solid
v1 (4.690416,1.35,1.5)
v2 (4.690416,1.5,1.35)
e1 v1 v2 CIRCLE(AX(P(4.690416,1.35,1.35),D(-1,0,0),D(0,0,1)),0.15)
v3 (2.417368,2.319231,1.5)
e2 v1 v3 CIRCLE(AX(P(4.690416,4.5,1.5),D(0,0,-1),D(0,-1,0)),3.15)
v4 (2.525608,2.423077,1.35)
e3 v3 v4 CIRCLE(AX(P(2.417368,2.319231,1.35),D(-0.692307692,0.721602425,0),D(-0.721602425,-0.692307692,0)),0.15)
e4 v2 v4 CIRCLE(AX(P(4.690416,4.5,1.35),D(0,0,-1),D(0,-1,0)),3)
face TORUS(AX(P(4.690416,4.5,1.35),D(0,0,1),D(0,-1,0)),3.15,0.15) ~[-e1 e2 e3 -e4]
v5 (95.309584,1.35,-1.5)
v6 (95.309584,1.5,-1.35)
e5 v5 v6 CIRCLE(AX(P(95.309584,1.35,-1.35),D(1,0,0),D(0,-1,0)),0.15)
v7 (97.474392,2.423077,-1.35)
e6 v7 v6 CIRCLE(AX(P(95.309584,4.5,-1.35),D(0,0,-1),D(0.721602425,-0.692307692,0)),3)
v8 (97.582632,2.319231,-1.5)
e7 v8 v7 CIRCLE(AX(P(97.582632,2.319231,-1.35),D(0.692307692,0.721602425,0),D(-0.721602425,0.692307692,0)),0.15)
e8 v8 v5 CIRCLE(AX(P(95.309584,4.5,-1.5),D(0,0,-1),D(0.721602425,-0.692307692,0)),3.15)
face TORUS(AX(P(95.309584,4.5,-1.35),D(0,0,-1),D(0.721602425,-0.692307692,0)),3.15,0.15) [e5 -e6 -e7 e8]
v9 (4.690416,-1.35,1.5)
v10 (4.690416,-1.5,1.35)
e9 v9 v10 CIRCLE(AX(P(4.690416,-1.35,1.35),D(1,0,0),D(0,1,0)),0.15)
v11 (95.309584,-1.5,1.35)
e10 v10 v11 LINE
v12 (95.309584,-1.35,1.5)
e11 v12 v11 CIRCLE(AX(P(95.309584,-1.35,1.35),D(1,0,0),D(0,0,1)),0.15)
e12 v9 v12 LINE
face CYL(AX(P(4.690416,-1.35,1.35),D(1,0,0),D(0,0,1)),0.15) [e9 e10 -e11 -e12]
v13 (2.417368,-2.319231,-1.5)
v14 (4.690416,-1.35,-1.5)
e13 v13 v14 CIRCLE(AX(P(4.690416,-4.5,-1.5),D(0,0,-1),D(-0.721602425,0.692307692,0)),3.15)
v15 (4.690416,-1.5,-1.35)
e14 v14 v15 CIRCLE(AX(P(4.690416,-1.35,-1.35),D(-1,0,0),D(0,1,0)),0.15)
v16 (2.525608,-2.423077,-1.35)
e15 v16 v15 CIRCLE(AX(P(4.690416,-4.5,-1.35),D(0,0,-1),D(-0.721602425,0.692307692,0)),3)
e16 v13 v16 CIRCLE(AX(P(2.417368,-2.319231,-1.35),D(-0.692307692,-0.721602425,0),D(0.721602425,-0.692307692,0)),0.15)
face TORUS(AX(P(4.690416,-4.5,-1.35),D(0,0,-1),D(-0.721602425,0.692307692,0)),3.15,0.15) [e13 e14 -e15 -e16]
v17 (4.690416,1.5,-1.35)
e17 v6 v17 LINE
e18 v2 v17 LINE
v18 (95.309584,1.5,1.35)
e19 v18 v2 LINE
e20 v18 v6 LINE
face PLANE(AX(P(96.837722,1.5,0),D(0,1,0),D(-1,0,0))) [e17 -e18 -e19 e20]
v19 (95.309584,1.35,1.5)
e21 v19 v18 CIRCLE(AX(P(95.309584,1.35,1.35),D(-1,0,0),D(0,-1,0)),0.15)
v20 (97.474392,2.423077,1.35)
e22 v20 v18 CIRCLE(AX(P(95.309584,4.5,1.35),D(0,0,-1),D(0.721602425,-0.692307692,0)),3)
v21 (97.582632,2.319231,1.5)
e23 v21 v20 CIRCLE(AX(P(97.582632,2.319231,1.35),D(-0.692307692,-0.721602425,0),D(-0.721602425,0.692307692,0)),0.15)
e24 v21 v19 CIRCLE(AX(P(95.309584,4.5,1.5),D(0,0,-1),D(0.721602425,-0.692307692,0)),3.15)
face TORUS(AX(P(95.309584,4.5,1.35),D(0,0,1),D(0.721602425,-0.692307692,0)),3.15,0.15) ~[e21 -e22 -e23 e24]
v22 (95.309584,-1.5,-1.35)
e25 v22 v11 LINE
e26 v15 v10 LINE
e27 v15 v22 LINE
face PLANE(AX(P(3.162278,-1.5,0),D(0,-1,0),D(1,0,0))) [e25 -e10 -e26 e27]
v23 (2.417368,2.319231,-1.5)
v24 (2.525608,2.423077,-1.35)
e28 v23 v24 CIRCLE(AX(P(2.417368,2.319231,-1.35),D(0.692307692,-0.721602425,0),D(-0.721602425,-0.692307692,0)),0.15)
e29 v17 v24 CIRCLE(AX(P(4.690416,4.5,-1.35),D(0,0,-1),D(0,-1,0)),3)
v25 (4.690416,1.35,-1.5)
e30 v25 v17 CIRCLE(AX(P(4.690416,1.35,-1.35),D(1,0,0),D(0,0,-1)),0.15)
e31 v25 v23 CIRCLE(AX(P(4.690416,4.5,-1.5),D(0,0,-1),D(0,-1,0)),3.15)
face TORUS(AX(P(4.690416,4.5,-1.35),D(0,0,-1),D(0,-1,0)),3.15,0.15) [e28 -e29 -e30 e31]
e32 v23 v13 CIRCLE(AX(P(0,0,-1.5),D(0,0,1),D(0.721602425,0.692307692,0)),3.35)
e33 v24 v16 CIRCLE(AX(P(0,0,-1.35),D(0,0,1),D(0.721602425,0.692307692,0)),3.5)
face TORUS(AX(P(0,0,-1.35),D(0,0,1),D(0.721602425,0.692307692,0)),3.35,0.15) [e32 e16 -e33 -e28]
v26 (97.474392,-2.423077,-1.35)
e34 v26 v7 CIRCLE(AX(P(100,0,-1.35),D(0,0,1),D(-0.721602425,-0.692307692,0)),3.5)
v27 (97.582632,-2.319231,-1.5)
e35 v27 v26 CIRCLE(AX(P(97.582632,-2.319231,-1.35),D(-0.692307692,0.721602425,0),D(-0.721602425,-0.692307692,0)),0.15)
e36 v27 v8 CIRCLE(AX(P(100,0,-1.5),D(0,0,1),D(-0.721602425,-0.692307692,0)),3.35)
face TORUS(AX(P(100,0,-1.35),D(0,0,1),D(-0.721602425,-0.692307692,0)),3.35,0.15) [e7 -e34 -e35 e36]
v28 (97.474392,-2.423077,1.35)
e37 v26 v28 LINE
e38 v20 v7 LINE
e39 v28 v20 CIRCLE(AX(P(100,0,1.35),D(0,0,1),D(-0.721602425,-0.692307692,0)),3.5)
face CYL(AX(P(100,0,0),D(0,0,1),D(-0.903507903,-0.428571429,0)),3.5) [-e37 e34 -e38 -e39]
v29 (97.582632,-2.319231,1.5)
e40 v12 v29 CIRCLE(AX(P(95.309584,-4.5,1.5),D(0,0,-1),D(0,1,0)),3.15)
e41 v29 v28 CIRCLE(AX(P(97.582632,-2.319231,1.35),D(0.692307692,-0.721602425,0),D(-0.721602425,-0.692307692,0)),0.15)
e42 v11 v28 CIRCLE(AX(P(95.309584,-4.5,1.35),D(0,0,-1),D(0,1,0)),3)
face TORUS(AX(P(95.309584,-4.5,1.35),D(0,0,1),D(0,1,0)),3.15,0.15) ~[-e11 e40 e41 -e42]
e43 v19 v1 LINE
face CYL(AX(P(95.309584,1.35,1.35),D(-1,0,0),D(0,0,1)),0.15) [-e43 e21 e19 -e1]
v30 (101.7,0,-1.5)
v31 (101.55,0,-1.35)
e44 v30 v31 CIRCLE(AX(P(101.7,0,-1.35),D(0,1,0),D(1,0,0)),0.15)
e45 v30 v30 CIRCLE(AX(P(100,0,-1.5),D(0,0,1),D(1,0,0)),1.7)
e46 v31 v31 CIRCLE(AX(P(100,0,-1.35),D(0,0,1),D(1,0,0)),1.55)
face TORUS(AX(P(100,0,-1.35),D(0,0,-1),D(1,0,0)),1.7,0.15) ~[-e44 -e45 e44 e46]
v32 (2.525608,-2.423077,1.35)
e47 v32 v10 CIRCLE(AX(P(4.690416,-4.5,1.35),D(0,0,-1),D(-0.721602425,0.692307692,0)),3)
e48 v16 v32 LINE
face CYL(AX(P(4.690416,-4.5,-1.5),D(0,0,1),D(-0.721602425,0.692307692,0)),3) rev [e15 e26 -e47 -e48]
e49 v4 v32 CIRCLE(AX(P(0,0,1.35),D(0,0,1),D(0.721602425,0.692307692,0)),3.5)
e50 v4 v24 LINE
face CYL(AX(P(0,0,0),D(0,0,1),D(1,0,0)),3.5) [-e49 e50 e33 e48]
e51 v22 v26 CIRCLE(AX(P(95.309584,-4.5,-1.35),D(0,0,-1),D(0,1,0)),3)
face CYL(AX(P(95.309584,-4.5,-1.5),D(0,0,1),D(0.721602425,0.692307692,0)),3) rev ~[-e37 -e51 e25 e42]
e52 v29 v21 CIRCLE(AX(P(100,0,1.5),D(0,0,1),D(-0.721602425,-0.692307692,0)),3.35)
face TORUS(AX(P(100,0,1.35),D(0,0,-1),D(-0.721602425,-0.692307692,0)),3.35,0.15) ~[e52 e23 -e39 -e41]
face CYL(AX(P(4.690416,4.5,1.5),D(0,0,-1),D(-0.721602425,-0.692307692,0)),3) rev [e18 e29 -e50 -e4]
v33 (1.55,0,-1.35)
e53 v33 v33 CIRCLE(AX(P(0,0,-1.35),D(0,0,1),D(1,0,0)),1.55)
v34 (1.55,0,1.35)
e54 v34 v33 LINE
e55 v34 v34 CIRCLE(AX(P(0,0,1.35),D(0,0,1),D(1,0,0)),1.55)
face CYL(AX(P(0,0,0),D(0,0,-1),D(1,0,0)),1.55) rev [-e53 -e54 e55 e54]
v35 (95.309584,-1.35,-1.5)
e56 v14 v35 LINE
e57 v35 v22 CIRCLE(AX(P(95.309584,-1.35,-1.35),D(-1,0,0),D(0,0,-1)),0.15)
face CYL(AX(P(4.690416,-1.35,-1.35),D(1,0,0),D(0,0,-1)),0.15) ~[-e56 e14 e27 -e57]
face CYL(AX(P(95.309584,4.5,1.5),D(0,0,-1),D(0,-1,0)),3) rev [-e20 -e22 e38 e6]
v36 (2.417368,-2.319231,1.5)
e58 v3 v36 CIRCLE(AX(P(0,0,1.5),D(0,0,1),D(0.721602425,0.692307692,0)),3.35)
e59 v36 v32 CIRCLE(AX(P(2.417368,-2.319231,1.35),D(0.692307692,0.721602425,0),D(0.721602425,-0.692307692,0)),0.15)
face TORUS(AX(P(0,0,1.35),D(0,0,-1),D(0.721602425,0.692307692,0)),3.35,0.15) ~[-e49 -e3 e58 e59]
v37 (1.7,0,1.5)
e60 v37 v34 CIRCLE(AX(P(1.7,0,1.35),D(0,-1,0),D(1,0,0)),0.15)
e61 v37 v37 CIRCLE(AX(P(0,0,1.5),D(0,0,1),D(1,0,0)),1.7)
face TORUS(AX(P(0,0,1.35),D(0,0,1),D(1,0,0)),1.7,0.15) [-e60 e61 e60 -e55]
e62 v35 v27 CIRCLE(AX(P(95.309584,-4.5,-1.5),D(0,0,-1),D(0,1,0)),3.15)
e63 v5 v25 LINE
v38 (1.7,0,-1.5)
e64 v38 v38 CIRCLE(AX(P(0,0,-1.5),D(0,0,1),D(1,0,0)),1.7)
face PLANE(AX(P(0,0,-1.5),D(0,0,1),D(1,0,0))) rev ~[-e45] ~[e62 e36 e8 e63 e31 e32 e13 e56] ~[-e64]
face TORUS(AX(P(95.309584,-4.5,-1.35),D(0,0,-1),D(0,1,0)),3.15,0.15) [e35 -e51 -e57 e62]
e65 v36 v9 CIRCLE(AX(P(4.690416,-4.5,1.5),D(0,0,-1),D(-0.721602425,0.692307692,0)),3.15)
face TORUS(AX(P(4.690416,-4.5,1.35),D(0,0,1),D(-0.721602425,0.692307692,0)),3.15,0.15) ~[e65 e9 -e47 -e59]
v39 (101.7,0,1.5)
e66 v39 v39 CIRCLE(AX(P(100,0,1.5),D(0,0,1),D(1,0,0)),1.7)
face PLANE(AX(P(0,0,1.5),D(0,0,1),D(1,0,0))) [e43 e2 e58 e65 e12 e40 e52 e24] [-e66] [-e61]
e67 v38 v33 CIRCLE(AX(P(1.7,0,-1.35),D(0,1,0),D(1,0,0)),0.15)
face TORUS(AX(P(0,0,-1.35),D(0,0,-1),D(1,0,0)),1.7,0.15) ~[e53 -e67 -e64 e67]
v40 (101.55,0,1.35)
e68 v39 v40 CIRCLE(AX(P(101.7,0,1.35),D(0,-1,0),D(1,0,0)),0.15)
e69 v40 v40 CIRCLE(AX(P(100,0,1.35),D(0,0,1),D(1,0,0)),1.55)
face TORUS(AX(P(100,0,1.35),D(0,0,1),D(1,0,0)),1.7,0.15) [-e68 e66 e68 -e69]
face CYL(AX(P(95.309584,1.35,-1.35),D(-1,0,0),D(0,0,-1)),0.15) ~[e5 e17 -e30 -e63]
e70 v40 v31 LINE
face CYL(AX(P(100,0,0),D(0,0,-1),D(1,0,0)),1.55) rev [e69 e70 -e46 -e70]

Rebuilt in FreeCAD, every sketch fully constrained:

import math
import FreeCAD as App
import Part
import Sketcher
Q = App.Units.Quantity


def edges_at(feature, points):
    """Names of the edges that pass closest to the given points."""
    edges = feature.Shape.Edges
    near = lambda p: min(range(len(edges)), key=lambda i: edges[i].distToShape(Part.Vertex(*p))[0])
    return sorted({f"Edge{near(p) + 1}" for p in points})

doc = App.newDocument("Part")
body = doc.addObject("PartDesign::Body", "Body")

# Sketch on XY plane
sketch1 = body.newObject("Sketcher::SketchObject", "Sketch")
sketch1.AttachmentSupport = (doc.getObject("XY_Plane"), [""])
sketch1.MapMode = "FlatFace"
sketch1.addGeometry([
    Part.ArcOfCircle(Part.Circle(App.Vector(0, 0, 0), App.Vector(0, 0, 1), 3.5), math.radians(25.376934), math.radians(334.623066)),  # 0
    Part.LineSegment(App.Vector(3.162278, -1.5, 0), App.Vector(96.837722, -1.5, 0)),  # 1
    Part.ArcOfCircle(Part.Circle(App.Vector(100, 0, 0), App.Vector(0, 0, 1), 3.5), math.radians(-154.623066), math.radians(154.623066)),  # 2
    Part.LineSegment(App.Vector(96.837722, 1.5, 0), App.Vector(3.162278, 1.5, 0)),  # 3
    Part.Circle(App.Vector(0, 0, 0), App.Vector(0, 0, 1), 1.55),  # 4
    Part.Circle(App.Vector(100, 0, 0), App.Vector(0, 0, 1), 1.55),  # 5
], False)
sketch1.addConstraint([
    Sketcher.Constraint("Coincident", 0, 2, 1, 1),
    Sketcher.Constraint("Coincident", 1, 2, 2, 1),
    Sketcher.Constraint("Coincident", 2, 2, 3, 1),
    Sketcher.Constraint("Coincident", 3, 2, 0, 1),
    Sketcher.Constraint("Horizontal", 1),
    Sketcher.Constraint("Horizontal", 3),
    Sketcher.Constraint("Coincident", 0, 3, -1, 1),
    Sketcher.Constraint("Coincident", 4, 3, -1, 1),
    Sketcher.Constraint("Coincident", 5, 3, 2, 3),
    Sketcher.Constraint("Equal", 0, 2),
    Sketcher.Constraint("Equal", 4, 5),
    Sketcher.Constraint("Symmetric", 1, 2, 2, 2, -1),
    Sketcher.Constraint("Diameter", 4, Q("3.1 mm")),
    Sketcher.Constraint("Radius", 0, Q("3.5 mm")),
    Sketcher.Constraint("DistanceX", -1, 1, 2, 3, Q("100 mm")),
    Sketcher.Constraint("DistanceY", 1, 2, 2, 2, Q("3 mm")),
])
pad1 = body.newObject("PartDesign::Pad", "Pad")
pad1.Profile = sketch1
pad1.Length = 3
pad1.Midplane = True
doc.recompute()

fillet = body.newObject("PartDesign::Fillet", "Fillet")
fillet.Base = (pad1, edges_at(pad1, [
    (96.838, 1.5, 0),
    (96.838, -1.5, 0),
    (3.162, -1.5, 0),
    (3.162, 1.5, 0),
]))
fillet.Radius = 3
doc.recompute()

fillet2 = body.newObject("PartDesign::Fillet", "Fillet001")
fillet2.Base = (fillet, edges_at(fillet, [
    (103.5, 0, -1.5),
    (-1.55, 0, 1.5),
    (103.5, 0, 1.5),
    (50, -1.5, -1.5),
    (50, -1.5, 1.5),
    (98.45, 0, 1.5),
    (-3.5, 0, -1.5),
    (-3.5, 0, 1.5),
    (50, 1.5, -1.5),
    (50, 1.5, 1.5),
    (96.486, -1.74, -1.5),
    (96.486, -1.74, 1.5),
    (3.514, -1.74, -1.5),
    (3.514, -1.74, 1.5),
    (96.486, 1.74, -1.5),
    (96.486, 1.74, 1.5),
    (3.514, 1.74, -1.5),
    (3.514, 1.74, 1.5),
    (98.45, 0, -1.5),
    (-1.55, 0, -1.5),
]))
fillet2.Radius = 0.15

doc.recompute()
